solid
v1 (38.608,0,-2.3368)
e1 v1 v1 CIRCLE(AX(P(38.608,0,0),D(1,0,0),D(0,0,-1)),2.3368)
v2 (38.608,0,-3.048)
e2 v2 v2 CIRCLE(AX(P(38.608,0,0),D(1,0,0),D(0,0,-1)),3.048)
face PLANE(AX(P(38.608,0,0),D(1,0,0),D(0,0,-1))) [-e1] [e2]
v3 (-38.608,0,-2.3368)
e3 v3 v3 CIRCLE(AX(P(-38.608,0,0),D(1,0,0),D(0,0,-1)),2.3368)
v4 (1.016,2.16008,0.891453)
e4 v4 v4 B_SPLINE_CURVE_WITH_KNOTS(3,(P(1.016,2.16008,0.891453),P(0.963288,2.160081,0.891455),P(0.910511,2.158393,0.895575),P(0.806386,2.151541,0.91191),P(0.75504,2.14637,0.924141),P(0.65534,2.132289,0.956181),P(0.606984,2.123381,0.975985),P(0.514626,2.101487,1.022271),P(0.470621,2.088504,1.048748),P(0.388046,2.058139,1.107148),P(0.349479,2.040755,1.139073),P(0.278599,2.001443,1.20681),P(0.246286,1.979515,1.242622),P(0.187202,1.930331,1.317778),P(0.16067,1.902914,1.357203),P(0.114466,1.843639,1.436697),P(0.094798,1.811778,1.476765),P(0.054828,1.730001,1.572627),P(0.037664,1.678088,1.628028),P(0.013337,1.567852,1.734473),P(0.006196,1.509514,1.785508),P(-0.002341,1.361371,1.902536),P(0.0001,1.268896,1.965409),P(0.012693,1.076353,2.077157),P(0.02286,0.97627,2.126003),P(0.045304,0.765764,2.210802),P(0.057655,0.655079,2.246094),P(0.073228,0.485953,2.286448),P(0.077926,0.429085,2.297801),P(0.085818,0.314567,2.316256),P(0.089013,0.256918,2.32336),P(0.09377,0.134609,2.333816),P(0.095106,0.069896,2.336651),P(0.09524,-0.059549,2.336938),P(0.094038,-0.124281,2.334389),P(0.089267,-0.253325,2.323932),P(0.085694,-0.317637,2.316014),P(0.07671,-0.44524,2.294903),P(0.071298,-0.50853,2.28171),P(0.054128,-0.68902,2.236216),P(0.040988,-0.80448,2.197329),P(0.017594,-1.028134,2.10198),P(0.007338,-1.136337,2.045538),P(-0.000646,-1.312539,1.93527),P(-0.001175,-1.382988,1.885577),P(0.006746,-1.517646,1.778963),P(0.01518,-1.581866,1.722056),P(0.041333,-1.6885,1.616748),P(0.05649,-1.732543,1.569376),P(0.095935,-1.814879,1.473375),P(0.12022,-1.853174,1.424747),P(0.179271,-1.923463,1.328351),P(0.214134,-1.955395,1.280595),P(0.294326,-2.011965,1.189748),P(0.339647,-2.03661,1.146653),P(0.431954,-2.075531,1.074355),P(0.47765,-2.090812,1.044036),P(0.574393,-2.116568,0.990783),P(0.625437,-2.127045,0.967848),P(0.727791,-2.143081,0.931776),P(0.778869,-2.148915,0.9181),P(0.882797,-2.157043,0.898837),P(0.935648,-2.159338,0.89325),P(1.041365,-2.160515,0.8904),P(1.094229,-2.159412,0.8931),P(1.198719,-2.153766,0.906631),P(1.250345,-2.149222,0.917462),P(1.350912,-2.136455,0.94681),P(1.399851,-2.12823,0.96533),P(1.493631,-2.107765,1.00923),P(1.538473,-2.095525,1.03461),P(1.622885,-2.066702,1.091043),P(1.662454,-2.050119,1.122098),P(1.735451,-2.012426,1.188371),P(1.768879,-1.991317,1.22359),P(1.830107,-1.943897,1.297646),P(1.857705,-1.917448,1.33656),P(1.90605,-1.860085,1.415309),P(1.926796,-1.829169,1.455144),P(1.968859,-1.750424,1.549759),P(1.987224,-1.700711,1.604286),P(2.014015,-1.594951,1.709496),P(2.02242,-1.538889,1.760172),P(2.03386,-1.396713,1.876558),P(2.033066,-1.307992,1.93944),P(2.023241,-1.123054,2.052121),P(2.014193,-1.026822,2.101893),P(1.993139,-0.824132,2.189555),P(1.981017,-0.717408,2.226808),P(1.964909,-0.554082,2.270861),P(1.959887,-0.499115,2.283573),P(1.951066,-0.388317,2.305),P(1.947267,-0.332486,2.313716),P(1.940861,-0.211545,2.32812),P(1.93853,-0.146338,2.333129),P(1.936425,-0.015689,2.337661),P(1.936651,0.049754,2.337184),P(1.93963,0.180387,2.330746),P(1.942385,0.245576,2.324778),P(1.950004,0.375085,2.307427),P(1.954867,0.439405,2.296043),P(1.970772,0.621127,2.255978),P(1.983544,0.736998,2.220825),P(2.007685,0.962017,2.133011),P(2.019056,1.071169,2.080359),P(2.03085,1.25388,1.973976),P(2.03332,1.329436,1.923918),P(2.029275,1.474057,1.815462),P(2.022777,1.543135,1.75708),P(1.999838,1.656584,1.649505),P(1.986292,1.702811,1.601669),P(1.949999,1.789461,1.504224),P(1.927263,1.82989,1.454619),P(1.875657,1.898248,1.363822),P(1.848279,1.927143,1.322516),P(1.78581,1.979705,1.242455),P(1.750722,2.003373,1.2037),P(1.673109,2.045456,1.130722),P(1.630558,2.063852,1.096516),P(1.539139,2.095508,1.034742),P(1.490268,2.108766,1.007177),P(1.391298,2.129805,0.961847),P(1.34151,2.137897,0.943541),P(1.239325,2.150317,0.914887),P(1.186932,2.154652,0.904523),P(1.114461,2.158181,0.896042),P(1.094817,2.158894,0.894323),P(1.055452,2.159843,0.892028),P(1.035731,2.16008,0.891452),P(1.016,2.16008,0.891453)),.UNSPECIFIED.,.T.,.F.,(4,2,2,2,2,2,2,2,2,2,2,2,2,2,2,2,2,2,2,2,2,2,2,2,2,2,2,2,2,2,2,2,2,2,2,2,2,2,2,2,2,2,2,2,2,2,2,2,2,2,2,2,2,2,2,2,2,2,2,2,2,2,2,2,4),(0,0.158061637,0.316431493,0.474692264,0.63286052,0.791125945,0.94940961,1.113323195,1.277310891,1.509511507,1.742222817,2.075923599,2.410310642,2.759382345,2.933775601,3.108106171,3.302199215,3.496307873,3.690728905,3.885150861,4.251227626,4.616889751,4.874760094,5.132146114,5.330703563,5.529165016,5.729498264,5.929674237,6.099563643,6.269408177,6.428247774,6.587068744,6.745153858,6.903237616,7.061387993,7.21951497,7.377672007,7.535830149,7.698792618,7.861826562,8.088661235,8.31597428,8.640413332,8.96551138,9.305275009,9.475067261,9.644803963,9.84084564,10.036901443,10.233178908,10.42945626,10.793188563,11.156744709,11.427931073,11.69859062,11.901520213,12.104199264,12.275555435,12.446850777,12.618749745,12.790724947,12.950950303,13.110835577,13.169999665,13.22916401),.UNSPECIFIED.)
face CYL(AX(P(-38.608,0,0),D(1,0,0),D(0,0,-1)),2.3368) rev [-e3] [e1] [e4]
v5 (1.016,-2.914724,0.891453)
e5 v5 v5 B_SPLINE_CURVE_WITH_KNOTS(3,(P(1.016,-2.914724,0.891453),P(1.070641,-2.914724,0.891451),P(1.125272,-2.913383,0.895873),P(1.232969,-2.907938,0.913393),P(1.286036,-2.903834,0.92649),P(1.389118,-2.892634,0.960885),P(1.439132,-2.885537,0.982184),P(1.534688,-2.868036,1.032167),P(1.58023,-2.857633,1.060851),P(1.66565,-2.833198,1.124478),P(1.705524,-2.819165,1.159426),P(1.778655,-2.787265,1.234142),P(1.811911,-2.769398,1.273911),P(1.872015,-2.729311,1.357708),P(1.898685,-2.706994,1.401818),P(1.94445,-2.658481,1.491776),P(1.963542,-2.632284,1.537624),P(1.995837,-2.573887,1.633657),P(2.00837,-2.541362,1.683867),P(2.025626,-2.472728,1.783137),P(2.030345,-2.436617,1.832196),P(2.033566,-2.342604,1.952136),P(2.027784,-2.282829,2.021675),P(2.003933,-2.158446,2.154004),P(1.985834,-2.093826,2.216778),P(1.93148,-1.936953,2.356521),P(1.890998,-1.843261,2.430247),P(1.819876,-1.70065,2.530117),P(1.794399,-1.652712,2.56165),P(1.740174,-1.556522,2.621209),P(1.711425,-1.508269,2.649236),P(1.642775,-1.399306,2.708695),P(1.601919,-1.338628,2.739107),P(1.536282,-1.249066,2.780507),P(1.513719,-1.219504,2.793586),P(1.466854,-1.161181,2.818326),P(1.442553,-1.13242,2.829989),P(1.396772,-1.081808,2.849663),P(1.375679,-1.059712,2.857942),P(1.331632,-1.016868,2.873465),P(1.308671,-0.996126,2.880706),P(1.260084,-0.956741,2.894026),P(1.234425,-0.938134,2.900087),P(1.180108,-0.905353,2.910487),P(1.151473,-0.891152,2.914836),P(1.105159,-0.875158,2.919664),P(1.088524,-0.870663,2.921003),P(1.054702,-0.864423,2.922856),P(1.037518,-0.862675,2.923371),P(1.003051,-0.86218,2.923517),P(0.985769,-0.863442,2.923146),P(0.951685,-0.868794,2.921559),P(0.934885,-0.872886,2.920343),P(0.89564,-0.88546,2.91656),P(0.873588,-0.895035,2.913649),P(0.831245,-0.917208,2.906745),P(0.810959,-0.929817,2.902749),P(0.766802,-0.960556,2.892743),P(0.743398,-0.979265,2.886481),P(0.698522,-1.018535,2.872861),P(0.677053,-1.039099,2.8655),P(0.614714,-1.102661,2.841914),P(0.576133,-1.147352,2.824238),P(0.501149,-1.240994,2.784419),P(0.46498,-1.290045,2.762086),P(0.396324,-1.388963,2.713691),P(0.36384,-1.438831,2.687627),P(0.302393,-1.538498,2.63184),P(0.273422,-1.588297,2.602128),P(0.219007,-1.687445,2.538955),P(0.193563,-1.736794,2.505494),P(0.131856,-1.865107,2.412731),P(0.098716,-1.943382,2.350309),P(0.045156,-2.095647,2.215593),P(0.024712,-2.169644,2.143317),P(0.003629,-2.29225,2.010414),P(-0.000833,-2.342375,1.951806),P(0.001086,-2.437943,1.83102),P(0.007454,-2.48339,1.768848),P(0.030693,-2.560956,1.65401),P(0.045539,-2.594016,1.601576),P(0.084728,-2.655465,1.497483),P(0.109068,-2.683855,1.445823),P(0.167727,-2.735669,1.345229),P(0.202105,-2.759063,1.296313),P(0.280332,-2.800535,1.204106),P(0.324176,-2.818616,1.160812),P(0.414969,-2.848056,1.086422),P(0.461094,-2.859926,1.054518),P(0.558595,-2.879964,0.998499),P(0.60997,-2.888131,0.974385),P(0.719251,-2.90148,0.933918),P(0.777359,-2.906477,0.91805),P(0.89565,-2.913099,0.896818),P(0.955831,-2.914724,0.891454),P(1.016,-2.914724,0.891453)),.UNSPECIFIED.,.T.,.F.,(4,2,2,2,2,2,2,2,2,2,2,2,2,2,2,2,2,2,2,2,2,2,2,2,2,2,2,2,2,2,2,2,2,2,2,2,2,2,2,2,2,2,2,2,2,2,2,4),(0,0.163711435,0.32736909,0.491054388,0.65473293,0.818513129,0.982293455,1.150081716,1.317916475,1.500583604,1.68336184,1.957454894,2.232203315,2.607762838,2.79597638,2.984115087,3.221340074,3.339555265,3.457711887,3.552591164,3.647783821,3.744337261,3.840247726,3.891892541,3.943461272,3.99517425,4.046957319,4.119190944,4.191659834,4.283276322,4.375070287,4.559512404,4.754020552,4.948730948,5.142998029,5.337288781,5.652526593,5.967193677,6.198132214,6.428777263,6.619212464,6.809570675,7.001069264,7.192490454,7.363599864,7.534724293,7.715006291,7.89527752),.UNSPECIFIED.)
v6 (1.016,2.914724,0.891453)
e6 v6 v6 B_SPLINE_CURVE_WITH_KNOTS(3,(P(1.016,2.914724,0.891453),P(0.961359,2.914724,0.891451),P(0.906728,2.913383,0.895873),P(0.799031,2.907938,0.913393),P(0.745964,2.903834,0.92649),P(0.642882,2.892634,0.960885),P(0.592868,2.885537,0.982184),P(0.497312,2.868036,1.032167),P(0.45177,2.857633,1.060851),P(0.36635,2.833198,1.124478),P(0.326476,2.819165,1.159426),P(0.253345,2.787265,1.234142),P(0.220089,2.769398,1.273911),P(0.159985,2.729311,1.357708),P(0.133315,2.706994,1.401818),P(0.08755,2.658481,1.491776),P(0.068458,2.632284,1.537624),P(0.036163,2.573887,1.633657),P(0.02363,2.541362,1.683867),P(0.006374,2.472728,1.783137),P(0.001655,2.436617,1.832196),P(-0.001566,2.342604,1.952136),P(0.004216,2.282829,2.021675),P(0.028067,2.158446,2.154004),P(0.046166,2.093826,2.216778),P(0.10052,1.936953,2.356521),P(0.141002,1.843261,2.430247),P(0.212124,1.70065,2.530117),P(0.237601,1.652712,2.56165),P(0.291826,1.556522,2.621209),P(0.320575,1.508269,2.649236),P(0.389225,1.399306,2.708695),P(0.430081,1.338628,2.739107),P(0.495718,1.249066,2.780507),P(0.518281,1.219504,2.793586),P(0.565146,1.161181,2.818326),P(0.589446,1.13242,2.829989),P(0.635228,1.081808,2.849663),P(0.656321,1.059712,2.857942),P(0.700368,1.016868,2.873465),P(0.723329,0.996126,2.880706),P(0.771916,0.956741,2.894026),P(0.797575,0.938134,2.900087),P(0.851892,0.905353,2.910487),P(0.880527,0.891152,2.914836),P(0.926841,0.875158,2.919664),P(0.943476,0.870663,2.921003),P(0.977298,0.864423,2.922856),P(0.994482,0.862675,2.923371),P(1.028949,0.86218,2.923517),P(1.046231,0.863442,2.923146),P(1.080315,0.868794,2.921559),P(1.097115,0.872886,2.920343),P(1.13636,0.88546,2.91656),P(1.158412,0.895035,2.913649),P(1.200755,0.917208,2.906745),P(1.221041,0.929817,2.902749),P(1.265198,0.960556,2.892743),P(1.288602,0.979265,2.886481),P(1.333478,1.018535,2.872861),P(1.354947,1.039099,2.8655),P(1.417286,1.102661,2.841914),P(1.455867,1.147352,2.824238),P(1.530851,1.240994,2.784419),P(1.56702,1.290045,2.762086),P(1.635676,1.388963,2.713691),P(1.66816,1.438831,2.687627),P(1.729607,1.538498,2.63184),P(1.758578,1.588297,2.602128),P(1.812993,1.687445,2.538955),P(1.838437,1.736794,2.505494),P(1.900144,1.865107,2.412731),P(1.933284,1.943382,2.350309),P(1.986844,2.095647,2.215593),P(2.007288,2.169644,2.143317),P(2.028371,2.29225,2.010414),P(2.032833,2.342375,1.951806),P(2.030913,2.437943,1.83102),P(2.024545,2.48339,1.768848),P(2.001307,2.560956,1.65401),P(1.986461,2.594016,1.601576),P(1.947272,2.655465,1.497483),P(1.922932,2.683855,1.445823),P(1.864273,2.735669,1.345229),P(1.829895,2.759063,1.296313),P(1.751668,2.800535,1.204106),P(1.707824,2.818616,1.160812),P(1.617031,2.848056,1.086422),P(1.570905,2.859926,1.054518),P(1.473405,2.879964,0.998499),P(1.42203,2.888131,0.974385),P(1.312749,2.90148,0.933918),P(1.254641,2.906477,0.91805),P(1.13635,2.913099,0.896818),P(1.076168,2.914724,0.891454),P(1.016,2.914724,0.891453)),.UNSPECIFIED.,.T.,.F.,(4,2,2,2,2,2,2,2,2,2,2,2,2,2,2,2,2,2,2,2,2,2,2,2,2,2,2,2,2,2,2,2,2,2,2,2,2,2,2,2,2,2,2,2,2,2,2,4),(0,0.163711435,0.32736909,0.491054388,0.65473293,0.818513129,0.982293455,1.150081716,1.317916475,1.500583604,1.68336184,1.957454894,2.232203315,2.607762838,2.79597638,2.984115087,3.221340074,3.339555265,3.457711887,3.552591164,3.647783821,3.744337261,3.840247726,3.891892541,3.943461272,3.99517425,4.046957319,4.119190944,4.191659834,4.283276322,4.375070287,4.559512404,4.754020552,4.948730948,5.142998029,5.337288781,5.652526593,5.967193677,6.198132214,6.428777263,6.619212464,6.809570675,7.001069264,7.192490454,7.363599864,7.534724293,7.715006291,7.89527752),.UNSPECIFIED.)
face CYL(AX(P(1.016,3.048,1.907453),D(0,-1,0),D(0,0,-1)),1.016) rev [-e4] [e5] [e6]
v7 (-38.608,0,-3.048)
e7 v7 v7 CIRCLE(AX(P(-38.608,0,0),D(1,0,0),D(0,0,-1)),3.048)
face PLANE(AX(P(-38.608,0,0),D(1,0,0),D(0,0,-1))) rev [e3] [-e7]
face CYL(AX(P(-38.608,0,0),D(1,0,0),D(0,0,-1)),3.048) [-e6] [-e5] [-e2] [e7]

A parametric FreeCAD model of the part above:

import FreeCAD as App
import Part
import Sketcher
Q = App.Units.Quantity

doc = App.newDocument("Part")
body = doc.addObject("PartDesign::Body", "Body")

sketch1 = doc.addObject("Sketcher::SketchObject", "Sketch")
body.addObject(sketch1)
sketch1.AttachmentSupport = (doc.YZ_Plane, [""])
sketch1.MapMode = "FlatFace"
sketch1.addGeometry([
    Part.Circle(App.Vector(0, 0, 0), App.Vector(0, 0, 1), 3.048),
    Part.Circle(App.Vector(0, 0, 0), App.Vector(0, 0, 1), 2.3368),
], False)
sketch1.addConstraint([
    Sketcher.Constraint("Coincident", 0, 3, -1, 1),
    Sketcher.Constraint("Coincident", 1, 3, -1, 1),
    Sketcher.Constraint("Diameter", 0, Q("0.24 in")),
    Sketcher.Constraint("Diameter", 1, Q("0.184 in")),
])
pad1 = doc.addObject("PartDesign::Pad", "Pad")
body.addObject(pad1)
pad1.Profile = sketch1
pad1.Type = "TwoLengths"
pad1.Length = Q("1.52 in")
pad1.Length2 = Q("1.52 in")

sketch2 = doc.addObject("Sketcher::SketchObject", "Sketch001")
body.addObject(sketch2)
sketch2.AttachmentSupport = (doc.XZ_Plane, [""])
sketch2.MapMode = "FlatFace"
sketch2.addGeometry(Part.Circle(App.Vector(1.016, 1.907453, 0), App.Vector(0, 0, 1), 1.016), False)
sketch2.addConstraint([
    Sketcher.Constraint("Diameter", 0, Q("0.08 in")),
    Sketcher.Constraint("DistanceX", -1, 1, 0, 3, Q("0.04 in")),
    Sketcher.Constraint("DistanceY", -1, 1, 0, 3, Q("1.907453 mm")),
])
pocket1 = doc.addObject("PartDesign::Pocket", "Pocket")
body.addObject(pocket1)
pocket1.Profile = sketch2
pocket1.Type = "ThroughAll"
pocket1.Midplane = True

doc.recompute()
